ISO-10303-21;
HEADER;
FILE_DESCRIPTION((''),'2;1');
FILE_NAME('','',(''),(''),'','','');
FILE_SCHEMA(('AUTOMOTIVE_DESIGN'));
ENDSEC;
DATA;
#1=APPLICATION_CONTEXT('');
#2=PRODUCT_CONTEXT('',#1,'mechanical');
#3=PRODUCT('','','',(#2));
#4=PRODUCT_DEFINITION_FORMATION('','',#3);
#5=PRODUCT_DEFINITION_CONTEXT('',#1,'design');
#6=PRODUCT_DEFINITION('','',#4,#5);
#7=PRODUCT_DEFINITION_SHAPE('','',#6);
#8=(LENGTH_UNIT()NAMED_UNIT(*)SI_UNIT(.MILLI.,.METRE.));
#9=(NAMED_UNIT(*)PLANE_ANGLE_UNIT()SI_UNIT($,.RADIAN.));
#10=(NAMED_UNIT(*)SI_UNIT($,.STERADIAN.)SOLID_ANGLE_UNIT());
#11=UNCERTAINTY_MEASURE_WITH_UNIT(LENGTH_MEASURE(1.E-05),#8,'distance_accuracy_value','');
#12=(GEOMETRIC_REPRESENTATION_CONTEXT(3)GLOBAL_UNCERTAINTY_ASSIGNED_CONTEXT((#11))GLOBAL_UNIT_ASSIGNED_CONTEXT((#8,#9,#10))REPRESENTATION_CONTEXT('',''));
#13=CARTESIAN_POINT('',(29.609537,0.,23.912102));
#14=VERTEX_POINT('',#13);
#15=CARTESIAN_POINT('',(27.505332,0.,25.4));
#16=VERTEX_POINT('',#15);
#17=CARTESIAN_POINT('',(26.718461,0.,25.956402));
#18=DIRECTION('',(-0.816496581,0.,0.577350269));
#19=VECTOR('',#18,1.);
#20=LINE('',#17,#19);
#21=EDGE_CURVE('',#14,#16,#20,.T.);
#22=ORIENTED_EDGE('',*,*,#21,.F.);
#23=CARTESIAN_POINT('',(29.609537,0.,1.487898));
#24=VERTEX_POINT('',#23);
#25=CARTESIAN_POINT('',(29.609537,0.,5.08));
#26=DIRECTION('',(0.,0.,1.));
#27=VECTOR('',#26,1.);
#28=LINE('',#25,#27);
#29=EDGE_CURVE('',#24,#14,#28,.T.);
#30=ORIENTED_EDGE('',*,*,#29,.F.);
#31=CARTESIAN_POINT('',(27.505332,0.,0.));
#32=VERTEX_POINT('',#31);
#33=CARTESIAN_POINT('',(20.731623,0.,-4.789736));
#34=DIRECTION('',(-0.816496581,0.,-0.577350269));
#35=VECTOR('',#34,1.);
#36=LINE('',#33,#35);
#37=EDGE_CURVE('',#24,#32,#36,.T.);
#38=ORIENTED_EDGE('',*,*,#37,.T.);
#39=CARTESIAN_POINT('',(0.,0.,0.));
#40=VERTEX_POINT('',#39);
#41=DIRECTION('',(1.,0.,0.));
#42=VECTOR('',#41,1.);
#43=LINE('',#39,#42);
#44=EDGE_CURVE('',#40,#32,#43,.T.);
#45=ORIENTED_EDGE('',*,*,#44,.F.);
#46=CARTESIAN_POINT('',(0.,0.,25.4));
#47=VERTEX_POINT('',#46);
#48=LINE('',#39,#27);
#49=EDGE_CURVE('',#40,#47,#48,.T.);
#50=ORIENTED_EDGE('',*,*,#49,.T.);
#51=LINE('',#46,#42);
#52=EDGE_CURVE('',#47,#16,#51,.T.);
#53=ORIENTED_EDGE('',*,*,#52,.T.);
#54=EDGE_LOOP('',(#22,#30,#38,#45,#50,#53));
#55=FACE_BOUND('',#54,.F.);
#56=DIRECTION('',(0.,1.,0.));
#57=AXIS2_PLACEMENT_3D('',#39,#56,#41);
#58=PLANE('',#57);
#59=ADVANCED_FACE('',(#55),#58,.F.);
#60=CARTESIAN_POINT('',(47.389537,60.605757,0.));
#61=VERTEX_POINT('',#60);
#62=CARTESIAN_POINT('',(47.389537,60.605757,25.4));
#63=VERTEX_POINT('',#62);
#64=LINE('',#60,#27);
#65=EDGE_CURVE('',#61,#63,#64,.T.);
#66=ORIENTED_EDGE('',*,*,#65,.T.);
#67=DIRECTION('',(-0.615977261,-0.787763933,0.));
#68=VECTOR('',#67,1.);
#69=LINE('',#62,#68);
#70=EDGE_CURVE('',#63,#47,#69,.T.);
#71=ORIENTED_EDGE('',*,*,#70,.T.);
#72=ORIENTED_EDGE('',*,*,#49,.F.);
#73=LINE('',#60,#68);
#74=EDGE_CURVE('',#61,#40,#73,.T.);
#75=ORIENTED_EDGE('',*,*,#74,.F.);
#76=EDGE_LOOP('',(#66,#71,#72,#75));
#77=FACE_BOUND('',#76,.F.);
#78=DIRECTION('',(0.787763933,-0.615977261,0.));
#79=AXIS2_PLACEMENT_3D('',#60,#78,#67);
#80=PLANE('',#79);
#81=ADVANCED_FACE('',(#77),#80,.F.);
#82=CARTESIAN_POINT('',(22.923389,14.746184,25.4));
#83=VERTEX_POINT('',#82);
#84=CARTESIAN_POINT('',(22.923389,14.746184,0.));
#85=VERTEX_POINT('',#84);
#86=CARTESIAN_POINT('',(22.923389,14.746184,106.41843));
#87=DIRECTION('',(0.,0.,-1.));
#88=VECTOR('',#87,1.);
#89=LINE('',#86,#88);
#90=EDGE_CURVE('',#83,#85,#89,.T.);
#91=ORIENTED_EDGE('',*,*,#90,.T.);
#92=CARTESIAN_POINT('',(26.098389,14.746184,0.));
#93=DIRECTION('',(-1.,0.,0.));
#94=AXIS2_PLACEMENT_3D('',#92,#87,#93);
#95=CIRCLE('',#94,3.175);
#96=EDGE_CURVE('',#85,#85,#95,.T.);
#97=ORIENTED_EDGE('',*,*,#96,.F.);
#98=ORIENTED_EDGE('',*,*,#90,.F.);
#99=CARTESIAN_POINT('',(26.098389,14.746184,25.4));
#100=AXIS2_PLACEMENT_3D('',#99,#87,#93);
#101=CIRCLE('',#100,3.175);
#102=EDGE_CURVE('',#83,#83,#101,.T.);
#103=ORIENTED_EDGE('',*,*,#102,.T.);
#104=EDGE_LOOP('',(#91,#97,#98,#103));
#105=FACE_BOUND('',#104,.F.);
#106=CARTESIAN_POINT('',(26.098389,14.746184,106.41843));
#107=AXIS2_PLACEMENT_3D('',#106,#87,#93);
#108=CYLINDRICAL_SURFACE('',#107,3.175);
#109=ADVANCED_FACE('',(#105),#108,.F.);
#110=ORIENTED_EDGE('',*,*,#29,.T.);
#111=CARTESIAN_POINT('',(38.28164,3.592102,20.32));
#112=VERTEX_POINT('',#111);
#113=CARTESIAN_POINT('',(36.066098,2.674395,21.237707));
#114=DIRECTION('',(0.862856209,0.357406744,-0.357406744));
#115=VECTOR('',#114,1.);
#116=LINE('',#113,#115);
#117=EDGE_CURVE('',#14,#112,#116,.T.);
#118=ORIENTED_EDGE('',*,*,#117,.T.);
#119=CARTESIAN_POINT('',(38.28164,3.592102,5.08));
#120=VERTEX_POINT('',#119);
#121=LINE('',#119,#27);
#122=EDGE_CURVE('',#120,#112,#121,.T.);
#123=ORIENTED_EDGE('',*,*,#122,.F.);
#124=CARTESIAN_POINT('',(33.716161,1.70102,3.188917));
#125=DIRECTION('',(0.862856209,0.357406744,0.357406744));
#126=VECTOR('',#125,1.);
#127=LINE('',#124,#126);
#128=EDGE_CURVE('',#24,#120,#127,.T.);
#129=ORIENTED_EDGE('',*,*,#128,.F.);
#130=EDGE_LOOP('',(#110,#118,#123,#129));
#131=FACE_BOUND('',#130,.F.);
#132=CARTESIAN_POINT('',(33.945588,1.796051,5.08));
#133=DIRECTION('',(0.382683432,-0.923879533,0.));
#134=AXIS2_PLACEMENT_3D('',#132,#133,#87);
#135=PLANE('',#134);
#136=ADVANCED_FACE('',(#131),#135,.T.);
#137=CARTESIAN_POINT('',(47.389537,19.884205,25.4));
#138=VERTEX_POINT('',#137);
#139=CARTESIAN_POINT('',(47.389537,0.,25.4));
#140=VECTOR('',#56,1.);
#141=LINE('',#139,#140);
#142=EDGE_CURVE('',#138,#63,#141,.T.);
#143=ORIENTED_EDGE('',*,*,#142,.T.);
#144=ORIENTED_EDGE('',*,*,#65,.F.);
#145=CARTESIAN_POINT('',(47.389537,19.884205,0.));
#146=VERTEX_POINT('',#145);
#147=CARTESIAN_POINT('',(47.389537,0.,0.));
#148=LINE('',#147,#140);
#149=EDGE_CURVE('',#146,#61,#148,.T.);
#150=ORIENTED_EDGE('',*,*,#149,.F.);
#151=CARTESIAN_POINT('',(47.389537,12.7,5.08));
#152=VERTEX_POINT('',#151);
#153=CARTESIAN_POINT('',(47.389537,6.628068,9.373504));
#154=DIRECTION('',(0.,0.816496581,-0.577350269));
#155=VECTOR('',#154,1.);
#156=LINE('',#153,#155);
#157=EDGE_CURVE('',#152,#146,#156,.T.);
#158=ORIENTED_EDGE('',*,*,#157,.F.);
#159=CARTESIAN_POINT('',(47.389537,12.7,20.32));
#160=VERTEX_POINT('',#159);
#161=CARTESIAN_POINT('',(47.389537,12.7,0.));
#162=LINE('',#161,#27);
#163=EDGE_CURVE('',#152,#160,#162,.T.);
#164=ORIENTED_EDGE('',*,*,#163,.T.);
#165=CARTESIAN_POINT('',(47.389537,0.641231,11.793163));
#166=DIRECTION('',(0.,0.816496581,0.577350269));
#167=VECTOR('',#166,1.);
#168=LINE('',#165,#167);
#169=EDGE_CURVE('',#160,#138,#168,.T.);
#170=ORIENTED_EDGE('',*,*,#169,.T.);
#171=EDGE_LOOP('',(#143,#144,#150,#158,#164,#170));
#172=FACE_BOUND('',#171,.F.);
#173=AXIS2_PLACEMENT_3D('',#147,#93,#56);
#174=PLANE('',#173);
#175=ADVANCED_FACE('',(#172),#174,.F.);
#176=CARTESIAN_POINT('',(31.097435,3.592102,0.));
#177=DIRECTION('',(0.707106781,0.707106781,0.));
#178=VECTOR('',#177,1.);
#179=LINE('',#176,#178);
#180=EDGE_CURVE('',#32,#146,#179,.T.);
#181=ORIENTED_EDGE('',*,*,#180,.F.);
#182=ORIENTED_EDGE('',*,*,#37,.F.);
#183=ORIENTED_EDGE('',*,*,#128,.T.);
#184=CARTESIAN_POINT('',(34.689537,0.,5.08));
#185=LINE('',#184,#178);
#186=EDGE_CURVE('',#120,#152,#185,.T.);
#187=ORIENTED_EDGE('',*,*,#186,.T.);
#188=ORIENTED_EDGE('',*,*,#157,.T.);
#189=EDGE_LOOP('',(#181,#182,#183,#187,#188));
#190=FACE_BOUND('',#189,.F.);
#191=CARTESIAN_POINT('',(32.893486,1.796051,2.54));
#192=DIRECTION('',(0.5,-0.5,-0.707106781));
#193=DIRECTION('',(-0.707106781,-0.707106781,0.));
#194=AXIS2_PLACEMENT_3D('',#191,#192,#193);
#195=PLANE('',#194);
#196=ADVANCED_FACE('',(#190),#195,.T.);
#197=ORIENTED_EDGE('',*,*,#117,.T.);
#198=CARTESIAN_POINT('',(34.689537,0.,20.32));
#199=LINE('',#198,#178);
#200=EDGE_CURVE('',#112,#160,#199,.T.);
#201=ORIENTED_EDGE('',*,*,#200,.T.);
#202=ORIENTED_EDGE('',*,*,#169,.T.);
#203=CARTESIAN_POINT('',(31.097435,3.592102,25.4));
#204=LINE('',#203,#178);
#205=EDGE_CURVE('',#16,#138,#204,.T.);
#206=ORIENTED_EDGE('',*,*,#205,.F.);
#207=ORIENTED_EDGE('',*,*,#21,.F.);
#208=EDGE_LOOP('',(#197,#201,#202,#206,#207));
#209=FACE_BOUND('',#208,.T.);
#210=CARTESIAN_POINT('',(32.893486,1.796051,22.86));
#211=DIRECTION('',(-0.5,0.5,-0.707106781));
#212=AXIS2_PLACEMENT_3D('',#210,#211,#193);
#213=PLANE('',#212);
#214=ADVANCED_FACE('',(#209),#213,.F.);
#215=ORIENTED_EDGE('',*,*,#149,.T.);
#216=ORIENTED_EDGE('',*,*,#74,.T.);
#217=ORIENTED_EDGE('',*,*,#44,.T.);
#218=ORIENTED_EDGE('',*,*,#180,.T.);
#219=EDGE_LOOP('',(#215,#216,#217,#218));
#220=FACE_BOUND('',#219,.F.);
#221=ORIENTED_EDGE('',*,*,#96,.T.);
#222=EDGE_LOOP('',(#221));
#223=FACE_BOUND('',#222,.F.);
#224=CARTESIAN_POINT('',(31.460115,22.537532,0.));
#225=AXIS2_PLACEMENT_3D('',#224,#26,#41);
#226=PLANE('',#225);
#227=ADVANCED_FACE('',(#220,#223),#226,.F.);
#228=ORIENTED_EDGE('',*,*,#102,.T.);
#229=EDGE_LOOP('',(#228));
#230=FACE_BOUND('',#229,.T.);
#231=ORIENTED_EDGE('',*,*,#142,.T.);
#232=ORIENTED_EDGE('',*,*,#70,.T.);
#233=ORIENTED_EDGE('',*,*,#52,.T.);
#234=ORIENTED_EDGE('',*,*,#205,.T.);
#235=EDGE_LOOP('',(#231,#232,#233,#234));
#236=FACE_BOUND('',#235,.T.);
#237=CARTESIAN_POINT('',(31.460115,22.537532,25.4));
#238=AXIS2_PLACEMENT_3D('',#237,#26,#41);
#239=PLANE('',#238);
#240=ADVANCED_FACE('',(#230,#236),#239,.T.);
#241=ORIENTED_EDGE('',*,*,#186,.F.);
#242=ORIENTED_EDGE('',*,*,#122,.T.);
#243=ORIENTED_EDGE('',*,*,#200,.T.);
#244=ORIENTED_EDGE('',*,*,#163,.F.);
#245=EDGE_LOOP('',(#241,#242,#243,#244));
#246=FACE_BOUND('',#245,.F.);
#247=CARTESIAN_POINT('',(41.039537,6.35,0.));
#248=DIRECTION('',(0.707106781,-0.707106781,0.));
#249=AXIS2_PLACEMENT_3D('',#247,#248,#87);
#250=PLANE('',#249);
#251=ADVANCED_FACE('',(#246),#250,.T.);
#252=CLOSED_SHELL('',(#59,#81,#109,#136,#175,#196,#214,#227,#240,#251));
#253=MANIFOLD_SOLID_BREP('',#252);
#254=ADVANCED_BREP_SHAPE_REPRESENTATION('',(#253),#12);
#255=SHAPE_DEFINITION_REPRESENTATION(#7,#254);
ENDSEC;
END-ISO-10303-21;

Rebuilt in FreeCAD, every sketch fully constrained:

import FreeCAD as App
import Part
import Sketcher
from FreeCAD import Vector
Q = App.Units.Quantity


def edges_at(feature, points):
    """Names of the edges that pass closest to the given points."""
    edges = feature.Shape.Edges
    near = lambda p: min(range(len(edges)), key=lambda i: edges[i].distToShape(Part.Vertex(*p))[0])
    return sorted({f"Edge{near(p) + 1}" for p in points})

doc = App.newDocument("Part")
body = doc.addObject("PartDesign::Body", "Body")

# Sketch on XY plane
sketch1 = body.newObject("Sketcher::SketchObject", "Sketch")
sketch1.AttachmentSupport = (doc.getObject("XY_Plane"), [""])
sketch1.MapMode = "FlatFace"
sketch1.addGeometry([
    Part.LineSegment(Vector(47, 61, 0), Vector(0, 0, 0)),
    Part.LineSegment(Vector(0, 0, 0), Vector(47, 0, 0)),
    Part.LineSegment(Vector(47, 0, 0), Vector(47, 61, 0)),
], False)
sketch1.addConstraint([
    Sketcher.Constraint("Coincident", 0, 2, 1, 1),
    Sketcher.Constraint("Coincident", 1, 2, 2, 1),
    Sketcher.Constraint("Coincident", 2, 2, 0, 1),
    Sketcher.Constraint("Horizontal", 1),
    Sketcher.Constraint("Vertical", 2),
    Sketcher.Constraint("Coincident", 0, 2, -1, 1),
    Sketcher.Constraint("DistanceX", 1, 1, 1, 2, Q("47.389537 mm")),
    Sketcher.Constraint("DistanceY", 2, 1, 2, 2, Q("60.605757 mm")),
])
pad1 = body.newObject("PartDesign::Pad", "Pad")
pad1.Profile = sketch1
pad1.Length = Q("1 in")
doc.recompute()

chamfer = body.newObject("PartDesign::Chamfer", "Chamfer")
chamfer.Base = (pad1, edges_at(pad1, [(47.39, 0, 12.7)]))
chamfer.Size = Q("0.5 in")
doc.recompute()

chamfer2 = body.newObject("PartDesign::Chamfer", "Chamfer001")
chamfer2.Base = (chamfer, edges_at(chamfer, [(41.04, 6.35, 25.4)]))
chamfer2.Size = Q("0.2 in")
doc.recompute()

chamfer3 = body.newObject("PartDesign::Chamfer", "Chamfer002")
chamfer3.Base = (chamfer2, edges_at(chamfer2, [(41.04, 6.35, 0)]))
chamfer3.Size = Q("0.2 in")
doc.recompute()

chamfer4 = body.newObject("PartDesign::Chamfer", "Chamfer003")
chamfer4.Base = (chamfer3, edges_at(chamfer3, [(34.69, 0, 12.7)]))
chamfer4.Size = Q("0.2 in")

# Sketch on XY plane
sketch2 = body.newObject("Sketcher::SketchObject", "Sketch001")
sketch2.AttachmentSupport = (doc.getObject("XY_Plane"), [""])
sketch2.MapMode = "FlatFace"
sketch2.AttachmentOffset = App.Placement(Vector(0, 0, 1 * 25.4), App.Rotation())
sketch2.addGeometry(Part.Circle(Vector(26.1, 14.7, 0), Vector(0, 0, 1), 3.2), False)
sketch2.addConstraint([
    Sketcher.Constraint("Diameter", 0, Q("0.25 in")),
    Sketcher.Constraint("DistanceX", -1, 1, 0, 3, Q("26.098389 mm")),
    Sketcher.Constraint("DistanceY", -1, 1, 0, 3, Q("14.746184 mm")),
])
doc.recompute()
hole = body.newObject("PartDesign::Hole", "Hole")
hole.Profile = sketch2
hole.ThreadType = "None"
hole.Diameter = Q("0.25 in")
hole.DepthType = "ThroughAll"

doc.recompute()
